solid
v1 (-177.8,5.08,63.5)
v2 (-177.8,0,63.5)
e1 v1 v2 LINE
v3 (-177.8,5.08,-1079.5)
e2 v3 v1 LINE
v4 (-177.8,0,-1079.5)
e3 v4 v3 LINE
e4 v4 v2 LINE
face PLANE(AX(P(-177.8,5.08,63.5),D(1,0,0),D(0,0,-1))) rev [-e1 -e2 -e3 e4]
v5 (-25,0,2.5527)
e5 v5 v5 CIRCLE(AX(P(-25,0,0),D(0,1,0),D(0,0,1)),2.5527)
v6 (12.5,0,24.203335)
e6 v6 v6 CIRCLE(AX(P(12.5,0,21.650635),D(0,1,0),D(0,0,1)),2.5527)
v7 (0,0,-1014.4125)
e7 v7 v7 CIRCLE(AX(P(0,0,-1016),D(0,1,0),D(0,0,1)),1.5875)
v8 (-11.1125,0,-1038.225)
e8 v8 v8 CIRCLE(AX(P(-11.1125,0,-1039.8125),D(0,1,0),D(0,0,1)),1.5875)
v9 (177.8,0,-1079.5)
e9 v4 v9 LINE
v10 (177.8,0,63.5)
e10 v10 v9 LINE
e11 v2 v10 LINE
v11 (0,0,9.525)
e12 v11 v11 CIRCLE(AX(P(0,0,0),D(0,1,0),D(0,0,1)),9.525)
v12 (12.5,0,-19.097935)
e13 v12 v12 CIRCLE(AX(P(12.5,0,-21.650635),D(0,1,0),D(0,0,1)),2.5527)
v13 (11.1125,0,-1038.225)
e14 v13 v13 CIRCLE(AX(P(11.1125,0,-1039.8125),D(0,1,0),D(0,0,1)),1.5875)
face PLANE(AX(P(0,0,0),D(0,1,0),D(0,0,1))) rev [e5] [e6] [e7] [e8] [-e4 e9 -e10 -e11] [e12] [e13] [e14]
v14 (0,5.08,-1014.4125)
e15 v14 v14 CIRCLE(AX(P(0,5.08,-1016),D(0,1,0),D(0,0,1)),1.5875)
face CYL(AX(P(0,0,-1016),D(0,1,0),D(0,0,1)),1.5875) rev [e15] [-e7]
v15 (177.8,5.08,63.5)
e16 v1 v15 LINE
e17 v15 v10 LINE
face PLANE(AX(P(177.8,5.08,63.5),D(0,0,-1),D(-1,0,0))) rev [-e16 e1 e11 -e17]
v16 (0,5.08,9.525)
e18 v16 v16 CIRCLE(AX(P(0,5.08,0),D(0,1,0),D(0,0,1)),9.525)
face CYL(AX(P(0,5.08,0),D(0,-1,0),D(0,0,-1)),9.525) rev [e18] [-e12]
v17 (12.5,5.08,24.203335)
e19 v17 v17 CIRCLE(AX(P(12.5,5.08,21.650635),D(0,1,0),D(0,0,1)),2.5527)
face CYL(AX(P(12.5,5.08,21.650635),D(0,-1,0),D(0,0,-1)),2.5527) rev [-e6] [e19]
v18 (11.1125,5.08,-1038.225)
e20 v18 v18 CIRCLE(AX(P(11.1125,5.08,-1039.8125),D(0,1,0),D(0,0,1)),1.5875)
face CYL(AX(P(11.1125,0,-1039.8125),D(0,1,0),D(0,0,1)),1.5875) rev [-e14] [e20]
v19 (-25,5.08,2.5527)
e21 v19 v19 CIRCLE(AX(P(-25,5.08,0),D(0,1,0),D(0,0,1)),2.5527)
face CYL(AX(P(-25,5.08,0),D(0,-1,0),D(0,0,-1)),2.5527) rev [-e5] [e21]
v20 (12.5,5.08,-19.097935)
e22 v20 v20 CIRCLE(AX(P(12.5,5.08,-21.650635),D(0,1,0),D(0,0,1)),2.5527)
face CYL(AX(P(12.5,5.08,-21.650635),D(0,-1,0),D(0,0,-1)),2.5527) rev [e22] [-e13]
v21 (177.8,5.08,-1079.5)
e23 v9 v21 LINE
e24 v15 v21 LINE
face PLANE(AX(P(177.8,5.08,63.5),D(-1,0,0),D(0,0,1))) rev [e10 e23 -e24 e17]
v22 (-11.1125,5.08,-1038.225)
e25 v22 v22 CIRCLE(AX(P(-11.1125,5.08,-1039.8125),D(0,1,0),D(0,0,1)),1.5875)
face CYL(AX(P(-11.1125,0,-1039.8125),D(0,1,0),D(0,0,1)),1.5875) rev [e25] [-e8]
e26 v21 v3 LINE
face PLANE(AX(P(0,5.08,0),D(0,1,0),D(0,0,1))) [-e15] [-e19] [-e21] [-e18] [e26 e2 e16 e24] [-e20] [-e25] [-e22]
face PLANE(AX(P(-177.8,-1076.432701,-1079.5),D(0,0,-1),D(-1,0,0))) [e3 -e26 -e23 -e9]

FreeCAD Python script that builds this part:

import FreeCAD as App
import Part
import Sketcher

V = App.Vector
Q = App.Units.Quantity

doc = App.newDocument("Part")
body = doc.addObject("PartDesign::Body", "Body")

# Sketch on XZ plane
sketch1 = doc.addObject("Sketcher::SketchObject", "Sketch")
body.addObject(sketch1)
sketch1.AttachmentSupport = (doc.XZ_Plane, [""])
sketch1.MapMode = "FlatFace"
sketch1.addGeometry([
    Part.LineSegment(V(-177.8, -63.5, 0), V(-177.8, 63.5, 0)),  # 0
    Part.LineSegment(V(-177.8, 63.5, 0), V(177.8, 63.5, 0)),  # 1
    Part.LineSegment(V(177.8, 63.5, 0), V(177.8, -63.5, 0)),  # 2
    Part.LineSegment(V(177.8, -63.5, 0), V(-177.8, -63.5, 0)),  # 3
    Part.Circle(V(12.5, 21.7, 0), V(0, 0, 1), 2.6),  # 4
    Part.Circle(V(-25, 0, 0), V(0, 0, 1), 2.6),  # 5
    Part.Circle(V(0, 0, 0), V(0, 0, 1), 9.5),  # 6
    Part.Circle(V(12.5, -21.7, 0), V(0, 0, 1), 2.6),  # 7
], False)
sketch1.addConstraint([
    Sketcher.Constraint("Coincident", 0, 2, 1, 1),
    Sketcher.Constraint("Coincident", 1, 2, 2, 1),
    Sketcher.Constraint("Coincident", 2, 2, 3, 1),
    Sketcher.Constraint("Coincident", 3, 2, 0, 1),
    Sketcher.Constraint("Vertical", 0),
    Sketcher.Constraint("Horizontal", 1),
    Sketcher.Constraint("Vertical", 2),
    Sketcher.Constraint("Horizontal", 3),
    Sketcher.Constraint("Coincident", 6, 3, -1, 1),
    Sketcher.Constraint("Equal", 4, 5),
    Sketcher.Constraint("Equal", 5, 7),
    Sketcher.Constraint("Symmetric", 0, 2, 2, 2, -1, 1),
    Sketcher.Constraint("Symmetric", 4, 3, 7, 3, -1),
    Sketcher.Constraint("PointOnObject", 5, 3, -1),
    Sketcher.Constraint("Diameter", 6, Q("0.75 in")),
    Sketcher.Constraint("DistanceX", 1, 1, 1, 2, Q("14 in")),
    Sketcher.Constraint("DistanceY", 0, 1, 0, 2, Q("5 in")),
    Sketcher.Constraint("Diameter", 4, Q("0.201 in")),
    Sketcher.Constraint("DistanceX", -1, 1, 4, 3, Q("12.5 mm")),
    Sketcher.Constraint("DistanceX", 5, 3, -1, 1, Q("25 mm")),
    Sketcher.Constraint("DistanceY", 7, 3, 4, 3, Q("43.30127 mm")),
])
pad1 = doc.addObject("PartDesign::Pad", "Pad")
body.addObject(pad1)
pad1.Profile = sketch1
pad1.Length = Q("0.2 in")
pad1.Reversed = True

# Sketch on XZ plane
sketch2 = doc.addObject("Sketcher::SketchObject", "Sketch001")
body.addObject(sketch2)
sketch2.AttachmentSupport = (doc.XZ_Plane, [""])
sketch2.MapMode = "FlatFace"
sketch2.AttachmentOffset = App.Placement(V(0, 0, -0.2 * 25.4), App.Rotation())
sketch2.addGeometry([
    Part.LineSegment(V(-178, -1080, 0), V(-178, -64, 0)),
    Part.LineSegment(V(-178, -64, 0), V(178, -64, 0)),
    Part.LineSegment(V(178, -64, 0), V(178, -1080, 0)),
    Part.LineSegment(V(178, -1080, 0), V(-178, -1080, 0)),
], False)
sketch2.addConstraint([
    Sketcher.Constraint("Coincident", 0, 2, 1, 1),
    Sketcher.Constraint("Coincident", 1, 2, 2, 1),
    Sketcher.Constraint("Coincident", 2, 2, 3, 1),
    Sketcher.Constraint("Coincident", 3, 2, 0, 1),
    Sketcher.Constraint("Vertical", 0),
    Sketcher.Constraint("Horizontal", 1),
    Sketcher.Constraint("Vertical", 2),
    Sketcher.Constraint("Horizontal", 3),
    Sketcher.Constraint("DistanceX", 1, 1, 1, 2, Q("14 in")),
    Sketcher.Constraint("DistanceY", 0, 1, 0, 2, Q("40 in")),
    Sketcher.Constraint("DistanceX", 0, 2, -1, 1, Q("7 in")),
    Sketcher.Constraint("DistanceY", 0, 2, -1, 1, Q("2.5 in")),
])
pad2 = doc.addObject("PartDesign::Pad", "Pad001")
body.addObject(pad2)
pad2.Profile = sketch2
pad2.Length = Q("0.2 in")

# Sketch on XZ plane
sketch3 = doc.addObject("Sketcher::SketchObject", "Sketch002")
body.addObject(sketch3)
sketch3.AttachmentSupport = (doc.XZ_Plane, [""])
sketch3.MapMode = "FlatFace"
sketch3.AttachmentOffset = App.Placement(V(0, 0, -0.2 * 25.4), App.Rotation())
sketch3.addGeometry([
    Part.Circle(V(11.1, -1039.8, 0), V(0, 0, 1), 1.6),
    Part.Circle(V(-11.1, -1039.8, 0), V(0, 0, 1), 1.6),
    Part.Circle(V(0, -1016, 0), V(0, 0, 1), 1.6),
], False)
sketch3.addConstraint([
    Sketcher.Constraint("Equal", 0, 1),
    Sketcher.Constraint("Equal", 1, 2),
    Sketcher.Constraint("Symmetric", 0, 3, 1, 3, -2),
    Sketcher.Constraint("PointOnObject", 2, 3, -2),
    Sketcher.Constraint("Diameter", 0, Q("0.125 in")),
    Sketcher.Constraint("DistanceY", 2, 3, -1, 1, Q("40 in")),
    Sketcher.Constraint("DistanceX", -1, 1, 0, 3, Q("0.4375 in")),
    Sketcher.Constraint("DistanceY", 0, 3, -1, 1, Q("40.9375 in")),
])
pocket1 = doc.addObject("PartDesign::Pocket", "Pocket")
body.addObject(pocket1)
pocket1.Profile = sketch3
pocket1.Type = "ThroughAll"
pocket1.Reversed = True

doc.recompute()
